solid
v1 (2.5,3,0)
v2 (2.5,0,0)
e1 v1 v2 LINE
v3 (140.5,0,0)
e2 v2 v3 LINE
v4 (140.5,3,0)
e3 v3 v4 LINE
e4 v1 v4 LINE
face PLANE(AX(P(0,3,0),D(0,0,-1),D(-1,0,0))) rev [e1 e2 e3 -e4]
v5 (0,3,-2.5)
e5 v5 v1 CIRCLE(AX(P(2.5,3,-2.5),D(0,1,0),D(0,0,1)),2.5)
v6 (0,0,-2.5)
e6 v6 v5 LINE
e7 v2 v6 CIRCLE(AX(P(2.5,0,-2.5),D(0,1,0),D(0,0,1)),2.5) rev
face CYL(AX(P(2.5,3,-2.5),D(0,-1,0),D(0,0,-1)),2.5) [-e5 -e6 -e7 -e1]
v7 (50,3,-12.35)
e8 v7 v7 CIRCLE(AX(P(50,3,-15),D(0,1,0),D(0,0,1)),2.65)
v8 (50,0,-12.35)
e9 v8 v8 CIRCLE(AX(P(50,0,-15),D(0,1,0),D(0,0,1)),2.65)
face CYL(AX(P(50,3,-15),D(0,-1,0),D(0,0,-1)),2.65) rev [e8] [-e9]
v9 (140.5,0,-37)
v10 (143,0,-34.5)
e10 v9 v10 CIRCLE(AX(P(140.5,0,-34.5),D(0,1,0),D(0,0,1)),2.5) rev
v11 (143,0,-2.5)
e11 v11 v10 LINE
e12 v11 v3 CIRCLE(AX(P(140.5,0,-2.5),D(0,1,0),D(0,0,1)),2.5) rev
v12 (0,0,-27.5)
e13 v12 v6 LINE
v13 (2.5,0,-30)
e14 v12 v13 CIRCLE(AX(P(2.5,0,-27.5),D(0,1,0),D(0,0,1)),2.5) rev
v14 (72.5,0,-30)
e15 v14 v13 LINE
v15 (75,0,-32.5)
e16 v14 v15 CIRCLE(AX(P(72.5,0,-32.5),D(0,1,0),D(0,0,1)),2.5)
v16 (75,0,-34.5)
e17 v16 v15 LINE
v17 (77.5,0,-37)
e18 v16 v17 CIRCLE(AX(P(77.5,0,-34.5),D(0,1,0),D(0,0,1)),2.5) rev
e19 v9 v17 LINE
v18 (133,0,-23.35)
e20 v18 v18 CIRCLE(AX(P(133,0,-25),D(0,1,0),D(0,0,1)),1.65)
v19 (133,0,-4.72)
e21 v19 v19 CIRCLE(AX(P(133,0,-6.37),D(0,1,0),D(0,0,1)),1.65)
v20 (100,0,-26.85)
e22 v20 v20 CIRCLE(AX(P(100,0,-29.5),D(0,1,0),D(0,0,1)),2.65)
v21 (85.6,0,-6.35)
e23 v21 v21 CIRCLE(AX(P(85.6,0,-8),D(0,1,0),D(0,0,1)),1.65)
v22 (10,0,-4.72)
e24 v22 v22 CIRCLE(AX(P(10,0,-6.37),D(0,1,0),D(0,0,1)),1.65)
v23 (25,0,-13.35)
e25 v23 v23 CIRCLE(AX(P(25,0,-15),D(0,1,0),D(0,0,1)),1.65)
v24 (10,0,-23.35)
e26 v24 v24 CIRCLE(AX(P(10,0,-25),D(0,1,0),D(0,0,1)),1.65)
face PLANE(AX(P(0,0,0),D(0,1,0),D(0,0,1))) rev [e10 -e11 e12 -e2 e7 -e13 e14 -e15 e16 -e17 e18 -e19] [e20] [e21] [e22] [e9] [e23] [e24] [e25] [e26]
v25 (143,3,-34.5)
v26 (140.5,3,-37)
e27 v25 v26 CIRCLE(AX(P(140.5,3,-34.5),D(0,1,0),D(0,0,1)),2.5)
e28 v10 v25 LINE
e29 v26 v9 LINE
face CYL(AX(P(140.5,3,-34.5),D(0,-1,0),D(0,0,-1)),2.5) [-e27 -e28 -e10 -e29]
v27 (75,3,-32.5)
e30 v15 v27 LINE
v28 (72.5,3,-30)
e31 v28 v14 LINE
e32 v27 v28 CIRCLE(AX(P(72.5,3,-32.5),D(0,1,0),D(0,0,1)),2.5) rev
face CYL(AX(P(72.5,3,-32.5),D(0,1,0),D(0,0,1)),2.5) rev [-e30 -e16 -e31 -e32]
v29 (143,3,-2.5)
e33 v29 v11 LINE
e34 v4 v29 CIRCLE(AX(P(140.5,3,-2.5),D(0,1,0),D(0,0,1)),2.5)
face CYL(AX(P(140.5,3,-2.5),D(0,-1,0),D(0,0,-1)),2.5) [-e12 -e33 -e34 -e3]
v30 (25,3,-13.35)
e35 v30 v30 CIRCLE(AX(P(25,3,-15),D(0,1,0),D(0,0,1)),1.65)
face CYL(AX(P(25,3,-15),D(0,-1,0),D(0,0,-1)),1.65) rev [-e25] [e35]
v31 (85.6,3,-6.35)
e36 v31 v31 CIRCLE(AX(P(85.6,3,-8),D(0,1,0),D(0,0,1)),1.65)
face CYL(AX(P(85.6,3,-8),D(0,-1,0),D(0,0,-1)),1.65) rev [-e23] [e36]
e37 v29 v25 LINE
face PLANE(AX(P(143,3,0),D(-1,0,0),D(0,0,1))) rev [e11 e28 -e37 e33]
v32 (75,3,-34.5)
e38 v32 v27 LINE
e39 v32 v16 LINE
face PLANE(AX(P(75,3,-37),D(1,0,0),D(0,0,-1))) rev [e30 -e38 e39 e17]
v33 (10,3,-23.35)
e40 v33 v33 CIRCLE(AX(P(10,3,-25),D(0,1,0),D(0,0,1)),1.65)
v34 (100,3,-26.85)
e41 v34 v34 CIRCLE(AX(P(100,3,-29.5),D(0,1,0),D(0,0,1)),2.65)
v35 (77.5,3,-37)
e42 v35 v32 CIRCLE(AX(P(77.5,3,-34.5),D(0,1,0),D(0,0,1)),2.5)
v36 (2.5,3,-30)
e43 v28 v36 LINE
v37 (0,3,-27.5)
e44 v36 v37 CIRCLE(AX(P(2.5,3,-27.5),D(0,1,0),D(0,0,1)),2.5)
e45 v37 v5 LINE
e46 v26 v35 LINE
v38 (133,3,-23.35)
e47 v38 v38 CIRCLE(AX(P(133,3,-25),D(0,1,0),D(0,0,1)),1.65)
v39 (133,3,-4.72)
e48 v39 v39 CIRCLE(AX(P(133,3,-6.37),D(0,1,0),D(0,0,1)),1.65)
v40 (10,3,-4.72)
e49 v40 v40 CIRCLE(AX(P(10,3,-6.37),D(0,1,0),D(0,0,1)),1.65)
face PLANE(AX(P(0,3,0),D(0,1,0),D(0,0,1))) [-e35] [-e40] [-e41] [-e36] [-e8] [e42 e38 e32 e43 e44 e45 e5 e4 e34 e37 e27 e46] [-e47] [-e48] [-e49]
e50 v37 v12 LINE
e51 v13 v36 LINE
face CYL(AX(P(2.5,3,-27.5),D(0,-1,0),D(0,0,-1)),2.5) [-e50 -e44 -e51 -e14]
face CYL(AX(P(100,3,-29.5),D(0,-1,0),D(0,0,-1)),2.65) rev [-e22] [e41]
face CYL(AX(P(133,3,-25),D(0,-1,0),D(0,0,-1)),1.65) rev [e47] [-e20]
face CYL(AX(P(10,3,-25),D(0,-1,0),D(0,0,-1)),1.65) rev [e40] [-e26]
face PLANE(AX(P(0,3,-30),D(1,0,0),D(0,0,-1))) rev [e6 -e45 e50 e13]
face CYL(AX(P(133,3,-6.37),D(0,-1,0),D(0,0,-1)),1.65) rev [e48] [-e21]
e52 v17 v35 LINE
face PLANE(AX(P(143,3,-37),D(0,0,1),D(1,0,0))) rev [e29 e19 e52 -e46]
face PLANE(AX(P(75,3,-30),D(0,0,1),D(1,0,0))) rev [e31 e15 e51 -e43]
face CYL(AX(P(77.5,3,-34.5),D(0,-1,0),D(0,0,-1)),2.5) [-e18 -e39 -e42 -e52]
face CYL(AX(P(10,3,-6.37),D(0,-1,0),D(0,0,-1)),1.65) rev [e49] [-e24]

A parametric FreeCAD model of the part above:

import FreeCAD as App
import Part
import Sketcher
Q = App.Units.Quantity


def edges_at(feature, points):
    """Names of the edges that pass closest to the given points."""
    edges = feature.Shape.Edges
    near = lambda p: min(range(len(edges)), key=lambda i: edges[i].distToShape(Part.Vertex(*p))[0])
    return sorted({f"Edge{near(p) + 1}" for p in points})


def add_polygon(sketch, points):
    """Adds a closed chain of lines whose ends are joined by coincident constraints."""
    first, n = sketch.GeometryCount, len(points)
    for a, b in zip(points, points[1:] + points[:1]):
        sketch.addGeometry(Part.LineSegment(App.Vector(*a, 0), App.Vector(*b, 0)), False)
    for i in range(n):
        sketch.addConstraint(Sketcher.Constraint("Coincident", first + i, 2, first + (i + 1) % n, 1))

doc = App.newDocument("Part")
params = doc.addObject("Spreadsheet::Sheet", "Params")
for row, (alias, value) in enumerate([
    ("sketch1_diameter", "3.3 mm"),
    ("sketch1_diameter2", "5.3 mm"),
    ("sketch1_width", "143 mm"),
    ("sketch1_width2", "68 mm"),
    ("sketch1_height", "37 mm"),
    ("pad1_length", "3 mm"),
    ("fillet_radius", "2.5 mm"),
], start=1):
    params.set(f"A{row}", alias)
    params.set(f"B{row}", "=" + value)
    params.setAlias(f"B{row}", alias)

body = doc.addObject("PartDesign::Body", "Body")

# Sketch on XZ plane
sketch1 = body.newObject("Sketcher::SketchObject", "Sketch")
sketch1.AttachmentSupport = (doc.getObject("XZ_Plane"), [""])
sketch1.MapMode = "FlatFace"
add_polygon(sketch1, [(0, 0), (143, 0), (143, -37), (75, -37), (75, -30), (0, -30)])  # lines 0-5
sketch1.addGeometry(Part.Circle(App.Vector(10, -6.37, 0), App.Vector(0, 0, 1), 1.65), False)  # 6
sketch1.addGeometry(Part.Circle(App.Vector(25, -15, 0), App.Vector(0, 0, 1), 1.65), False)  # 7
sketch1.addGeometry(Part.Circle(App.Vector(50, -15, 0), App.Vector(0, 0, 1), 2.65), False)  # 8
sketch1.addGeometry(Part.Circle(App.Vector(85.6, -8, 0), App.Vector(0, 0, 1), 1.65), False)  # 9
sketch1.addGeometry(Part.Circle(App.Vector(133, -6.37, 0), App.Vector(0, 0, 1), 1.65), False)  # 10
sketch1.addGeometry(Part.Circle(App.Vector(10, -25, 0), App.Vector(0, 0, 1), 1.65), False)  # 11
sketch1.addGeometry(Part.Circle(App.Vector(133, -25, 0), App.Vector(0, 0, 1), 1.65), False)  # 12
sketch1.addGeometry(Part.Circle(App.Vector(100, -29.5, 0), App.Vector(0, 0, 1), 2.65), False)  # 13
sketch1.addConstraint(Sketcher.Constraint("Horizontal", 0))
sketch1.addConstraint(Sketcher.Constraint("Vertical", 1))
sketch1.addConstraint(Sketcher.Constraint("Horizontal", 2))
sketch1.addConstraint(Sketcher.Constraint("Vertical", 3))
sketch1.addConstraint(Sketcher.Constraint("Horizontal", 4))
sketch1.addConstraint(Sketcher.Constraint("Vertical", 5))
sketch1.addConstraint(Sketcher.Constraint("Coincident", 5, 2, -1, 1))
sketch1.addConstraint(Sketcher.Constraint("Equal", 6, 7))
sketch1.addConstraint(Sketcher.Constraint("Equal", 7, 9))
sketch1.addConstraint(Sketcher.Constraint("Equal", 9, 10))
sketch1.addConstraint(Sketcher.Constraint("Equal", 10, 11))
sketch1.addConstraint(Sketcher.Constraint("Equal", 11, 12))
sketch1.addConstraint(Sketcher.Constraint("Equal", 8, 13))
sketch1.addConstraint(Sketcher.Constraint("Horizontal", 7, 3, 8, 3))
sketch1.addConstraint(Sketcher.Constraint("Horizontal", 6, 3, 10, 3))
sketch1.addConstraint(Sketcher.Constraint("Horizontal", 11, 3, 12, 3))
sketch1.addConstraint(Sketcher.Constraint("Vertical", 6, 3, 11, 3))
sketch1.addConstraint(Sketcher.Constraint("Vertical", 10, 3, 12, 3))
sketch1.addConstraint(Sketcher.Constraint("Diameter", 6, Q("3.3 mm")))
sketch1.addConstraint(Sketcher.Constraint("Diameter", 8, Q("5.3 mm")))
sketch1.addConstraint(Sketcher.Constraint("DistanceX", 0, 1, 0, 2, Q("143 mm")))
sketch1.addConstraint(Sketcher.Constraint("DistanceX", 2, 2, 2, 1, Q("68 mm")))
sketch1.addConstraint(Sketcher.Constraint("DistanceY", 1, 2, 1, 1, Q("37 mm")))
sketch1.addConstraint(Sketcher.Constraint("DistanceY", 3, 1, 3, 2, Q("7 mm")))
sketch1.addConstraint(Sketcher.Constraint("DistanceX", -1, 1, 6, 3, Q("10 mm")))
sketch1.addConstraint(Sketcher.Constraint("DistanceX", -1, 1, 7, 3, Q("25 mm")))
sketch1.addConstraint(Sketcher.Constraint("DistanceY", 7, 3, -1, 1, Q("15 mm")))
sketch1.addConstraint(Sketcher.Constraint("DistanceX", -1, 1, 8, 3, Q("50 mm")))
sketch1.addConstraint(Sketcher.Constraint("DistanceY", 9, 3, -1, 1, Q("8 mm")))
sketch1.addConstraint(Sketcher.Constraint("DistanceX", -1, 1, 10, 3, Q("133 mm")))
sketch1.addConstraint(Sketcher.Constraint("DistanceY", 11, 3, -1, 1, Q("25 mm")))
sketch1.addConstraint(Sketcher.Constraint("DistanceX", -1, 1, 13, 3, Q("100 mm")))
sketch1.addConstraint(Sketcher.Constraint("DistanceX", -1, 1, 9, 3, Q("85.6 mm")))
sketch1.addConstraint(Sketcher.Constraint("DistanceY", 13, 3, -1, 1, Q("29.5 mm")))
sketch1.addConstraint(Sketcher.Constraint("DistanceY", 6, 3, -1, 1, Q("6.37 mm")))
sketch1.setExpression("Constraints[24]", "Params.sketch1_diameter")
sketch1.setExpression("Constraints[25]", "Params.sketch1_diameter2")
sketch1.setExpression("Constraints[26]", "Params.sketch1_width")
sketch1.setExpression("Constraints[27]", "Params.sketch1_width2")
sketch1.setExpression("Constraints[28]", "Params.sketch1_height")
pad1 = body.newObject("PartDesign::Pad", "Pad")
pad1.Profile = sketch1
pad1.setExpression("Length", "Params.pad1_length")
pad1.Reversed = True
doc.recompute()

fillet = body.newObject("PartDesign::Fillet", "Fillet")
fillet.Base = (pad1, edges_at(pad1, [
    (0, 1.5, -30),
    (75, 1.5, -30),
    (75, 1.5, -37),
    (143, 1.5, -37),
    (143, 1.5, 0),
    (0, 1.5, 0),
]))
fillet.setExpression("Radius", "Params.fillet_radius")

doc.recompute()
